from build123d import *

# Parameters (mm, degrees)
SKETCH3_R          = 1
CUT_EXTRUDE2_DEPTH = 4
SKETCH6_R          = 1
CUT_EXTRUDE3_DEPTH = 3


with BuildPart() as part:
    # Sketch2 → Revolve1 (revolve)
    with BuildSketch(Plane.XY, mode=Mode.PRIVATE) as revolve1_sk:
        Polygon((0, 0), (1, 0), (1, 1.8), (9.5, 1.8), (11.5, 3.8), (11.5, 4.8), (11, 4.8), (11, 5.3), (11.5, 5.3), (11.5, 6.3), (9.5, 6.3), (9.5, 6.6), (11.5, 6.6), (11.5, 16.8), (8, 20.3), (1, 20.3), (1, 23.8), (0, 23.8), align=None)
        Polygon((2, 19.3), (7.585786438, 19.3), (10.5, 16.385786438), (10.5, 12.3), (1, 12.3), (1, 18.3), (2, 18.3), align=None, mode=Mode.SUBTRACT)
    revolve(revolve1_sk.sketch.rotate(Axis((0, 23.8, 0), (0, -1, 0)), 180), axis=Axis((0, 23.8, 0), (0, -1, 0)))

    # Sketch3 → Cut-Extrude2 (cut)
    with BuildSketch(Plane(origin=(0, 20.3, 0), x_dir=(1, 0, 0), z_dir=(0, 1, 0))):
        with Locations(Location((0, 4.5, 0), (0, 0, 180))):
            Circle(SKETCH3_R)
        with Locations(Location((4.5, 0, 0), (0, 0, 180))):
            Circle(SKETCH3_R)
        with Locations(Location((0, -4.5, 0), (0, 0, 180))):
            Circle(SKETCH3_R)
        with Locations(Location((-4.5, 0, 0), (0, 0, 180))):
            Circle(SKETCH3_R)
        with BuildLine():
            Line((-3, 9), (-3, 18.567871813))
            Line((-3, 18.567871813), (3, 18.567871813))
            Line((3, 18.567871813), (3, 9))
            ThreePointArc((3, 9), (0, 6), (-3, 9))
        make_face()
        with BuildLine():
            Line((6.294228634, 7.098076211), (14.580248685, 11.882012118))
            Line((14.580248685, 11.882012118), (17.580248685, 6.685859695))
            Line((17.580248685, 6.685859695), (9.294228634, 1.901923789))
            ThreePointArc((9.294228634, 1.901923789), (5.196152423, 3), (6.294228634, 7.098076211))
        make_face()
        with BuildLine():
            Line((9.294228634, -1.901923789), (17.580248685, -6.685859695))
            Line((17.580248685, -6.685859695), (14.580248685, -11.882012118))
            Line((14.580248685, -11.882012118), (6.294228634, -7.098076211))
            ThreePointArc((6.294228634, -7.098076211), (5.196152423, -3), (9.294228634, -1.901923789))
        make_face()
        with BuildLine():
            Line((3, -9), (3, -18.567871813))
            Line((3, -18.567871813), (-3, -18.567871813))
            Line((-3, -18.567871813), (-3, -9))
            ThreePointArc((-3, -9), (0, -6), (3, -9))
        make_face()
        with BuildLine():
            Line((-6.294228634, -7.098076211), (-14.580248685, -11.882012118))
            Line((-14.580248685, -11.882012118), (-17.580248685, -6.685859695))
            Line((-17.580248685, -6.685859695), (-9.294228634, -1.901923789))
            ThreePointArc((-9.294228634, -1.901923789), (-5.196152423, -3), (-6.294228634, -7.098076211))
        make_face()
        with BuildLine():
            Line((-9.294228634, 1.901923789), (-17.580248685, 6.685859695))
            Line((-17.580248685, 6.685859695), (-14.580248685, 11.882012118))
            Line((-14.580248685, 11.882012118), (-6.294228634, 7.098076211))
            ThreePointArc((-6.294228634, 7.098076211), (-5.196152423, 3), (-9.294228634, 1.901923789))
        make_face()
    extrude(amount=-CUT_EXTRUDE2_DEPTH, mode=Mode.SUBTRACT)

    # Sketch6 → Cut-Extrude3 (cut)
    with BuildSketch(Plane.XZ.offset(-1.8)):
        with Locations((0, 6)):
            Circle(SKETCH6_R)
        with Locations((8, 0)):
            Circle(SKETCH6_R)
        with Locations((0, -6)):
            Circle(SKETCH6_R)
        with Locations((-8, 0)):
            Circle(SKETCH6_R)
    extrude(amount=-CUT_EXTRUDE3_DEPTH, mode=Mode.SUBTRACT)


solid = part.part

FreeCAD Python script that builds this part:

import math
import FreeCAD as App
import Part
import Sketcher
Q = App.Units.Quantity

doc = App.newDocument("Part")
body = doc.addObject("PartDesign::Body", "Body")

# Sketch on XY plane
sketch1 = body.newObject("Sketcher::SketchObject", "Sketch")
sketch1.AttachmentSupport = (doc.getObject("XY_Plane"), [""])
sketch1.MapMode = "FlatFace"
sketch1.addGeometry(Part.LineSegment(App.Vector(0, 0, 0), App.Vector(1, 0, 0)), False)
sketch1.addGeometry(Part.LineSegment(App.Vector(1, 0, 0), App.Vector(1, 1.8, 0)), False)
sketch1.addGeometry(Part.LineSegment(App.Vector(1, 1.8, 0), App.Vector(9.5, 1.8, 0)), False)
sketch1.addGeometry(Part.LineSegment(App.Vector(9.5, 1.8, 0), App.Vector(11.5, 3.8, 0)), False)
sketch1.addGeometry(Part.LineSegment(App.Vector(11.5, 3.8, 0), App.Vector(11.5, 4.8, 0)), False)
sketch1.addGeometry(Part.LineSegment(App.Vector(11.5, 4.8, 0), App.Vector(11, 4.8, 0)), False)
sketch1.addGeometry(Part.LineSegment(App.Vector(11, 4.8, 0), App.Vector(11, 5.3, 0)), False)
sketch1.addGeometry(Part.LineSegment(App.Vector(11, 5.3, 0), App.Vector(11.5, 5.3, 0)), False)
sketch1.addGeometry(Part.LineSegment(App.Vector(11.5, 5.3, 0), App.Vector(11.5, 6.3, 0)), False)
sketch1.addGeometry(Part.LineSegment(App.Vector(11.5, 6.3, 0), App.Vector(9.5, 6.3, 0)), False)
sketch1.addGeometry(Part.LineSegment(App.Vector(9.5, 6.3, 0), App.Vector(9.5, 6.6, 0)), False)
sketch1.addGeometry(Part.LineSegment(App.Vector(9.5, 6.6, 0), App.Vector(11.5, 6.6, 0)), False)
sketch1.addGeometry(Part.LineSegment(App.Vector(11.5, 6.6, 0), App.Vector(11.5, 16.8, 0)), False)
sketch1.addGeometry(Part.LineSegment(App.Vector(11.5, 16.8, 0), App.Vector(8, 20.3, 0)), False)
sketch1.addGeometry(Part.LineSegment(App.Vector(8, 20.3, 0), App.Vector(1, 20.3, 0)), False)
sketch1.addGeometry(Part.LineSegment(App.Vector(1, 20.3, 0), App.Vector(1, 23.8, 0)), False)
sketch1.addGeometry(Part.LineSegment(App.Vector(1, 23.8, 0), App.Vector(0, 23.8, 0)), False)
sketch1.addGeometry(Part.LineSegment(App.Vector(0, 23.8, 0), App.Vector(0, 0, 0)), False)
sketch1.addGeometry(Part.LineSegment(App.Vector(2, 18.3, 0), App.Vector(2, 19.3, 0)), False)
sketch1.addGeometry(Part.LineSegment(App.Vector(2, 19.3, 0), App.Vector(7.59, 19.3, 0)), False)
sketch1.addGeometry(Part.LineSegment(App.Vector(7.59, 19.3, 0), App.Vector(10.5, 16.39, 0)), False)
sketch1.addGeometry(Part.LineSegment(App.Vector(10.5, 16.39, 0), App.Vector(10.5, 12.3, 0)), False)
sketch1.addGeometry(Part.LineSegment(App.Vector(10.5, 12.3, 0), App.Vector(1, 12.3, 0)), False)
sketch1.addGeometry(Part.LineSegment(App.Vector(1, 12.3, 0), App.Vector(1, 18.3, 0)), False)
sketch1.addGeometry(Part.LineSegment(App.Vector(1, 18.3, 0), App.Vector(2, 18.3, 0)), False)
sketch1.addConstraint(Sketcher.Constraint("Coincident", 0, 2, 1, 1))
sketch1.addConstraint(Sketcher.Constraint("Coincident", 1, 2, 2, 1))
sketch1.addConstraint(Sketcher.Constraint("Coincident", 2, 2, 3, 1))
sketch1.addConstraint(Sketcher.Constraint("Coincident", 3, 2, 4, 1))
sketch1.addConstraint(Sketcher.Constraint("Coincident", 4, 2, 5, 1))
sketch1.addConstraint(Sketcher.Constraint("Coincident", 5, 2, 6, 1))
sketch1.addConstraint(Sketcher.Constraint("Coincident", 6, 2, 7, 1))
sketch1.addConstraint(Sketcher.Constraint("Coincident", 7, 2, 8, 1))
sketch1.addConstraint(Sketcher.Constraint("Coincident", 8, 2, 9, 1))
sketch1.addConstraint(Sketcher.Constraint("Coincident", 9, 2, 10, 1))
sketch1.addConstraint(Sketcher.Constraint("Coincident", 10, 2, 11, 1))
sketch1.addConstraint(Sketcher.Constraint("Coincident", 11, 2, 12, 1))
sketch1.addConstraint(Sketcher.Constraint("Coincident", 12, 2, 13, 1))
sketch1.addConstraint(Sketcher.Constraint("Coincident", 13, 2, 14, 1))
sketch1.addConstraint(Sketcher.Constraint("Coincident", 14, 2, 15, 1))
sketch1.addConstraint(Sketcher.Constraint("Coincident", 15, 2, 16, 1))
sketch1.addConstraint(Sketcher.Constraint("Coincident", 16, 2, 17, 1))
sketch1.addConstraint(Sketcher.Constraint("Coincident", 17, 2, 0, 1))
sketch1.addConstraint(Sketcher.Constraint("Coincident", 18, 2, 19, 1))
sketch1.addConstraint(Sketcher.Constraint("Coincident", 19, 2, 20, 1))
sketch1.addConstraint(Sketcher.Constraint("Coincident", 20, 2, 21, 1))
sketch1.addConstraint(Sketcher.Constraint("Coincident", 21, 2, 22, 1))
sketch1.addConstraint(Sketcher.Constraint("Coincident", 22, 2, 23, 1))
sketch1.addConstraint(Sketcher.Constraint("Coincident", 23, 2, 24, 1))
sketch1.addConstraint(Sketcher.Constraint("Coincident", 24, 2, 18, 1))
sketch1.addConstraint(Sketcher.Constraint("Horizontal", 0))
sketch1.addConstraint(Sketcher.Constraint("Vertical", 1))
sketch1.addConstraint(Sketcher.Constraint("Horizontal", 2))
sketch1.addConstraint(Sketcher.Constraint("Vertical", 4))
sketch1.addConstraint(Sketcher.Constraint("Horizontal", 5))
sketch1.addConstraint(Sketcher.Constraint("Vertical", 6))
sketch1.addConstraint(Sketcher.Constraint("Horizontal", 7))
sketch1.addConstraint(Sketcher.Constraint("Vertical", 8))
sketch1.addConstraint(Sketcher.Constraint("Horizontal", 9))
sketch1.addConstraint(Sketcher.Constraint("Vertical", 10))
sketch1.addConstraint(Sketcher.Constraint("Horizontal", 11))
sketch1.addConstraint(Sketcher.Constraint("Vertical", 12))
sketch1.addConstraint(Sketcher.Constraint("Horizontal", 14))
sketch1.addConstraint(Sketcher.Constraint("Vertical", 15))
sketch1.addConstraint(Sketcher.Constraint("Horizontal", 16))
sketch1.addConstraint(Sketcher.Constraint("Vertical", 17))
sketch1.addConstraint(Sketcher.Constraint("Vertical", 18))
sketch1.addConstraint(Sketcher.Constraint("Horizontal", 19))
sketch1.addConstraint(Sketcher.Constraint("Vertical", 21))
sketch1.addConstraint(Sketcher.Constraint("Horizontal", 22))
sketch1.addConstraint(Sketcher.Constraint("Vertical", 23))
sketch1.addConstraint(Sketcher.Constraint("Horizontal", 24))
sketch1.addConstraint(Sketcher.Constraint("Coincident", 17, 2, -1, 1))
sketch1.addConstraint(Sketcher.Constraint("Perpendicular", 3, 13))
sketch1.addConstraint(Sketcher.Constraint("Parallel", 13, 20))
sketch1.addConstraint(Sketcher.Constraint("Vertical", 4, 2, 7, 2))
sketch1.addConstraint(Sketcher.Constraint("Vertical", 2, 2, 9, 2))
sketch1.addConstraint(Sketcher.Constraint("Vertical", 8, 2, 11, 2))
sketch1.addConstraint(Sketcher.Constraint("Vertical", 1, 2, 14, 2))
sketch1.addConstraint(Sketcher.Constraint("Vertical", 15, 2, 22, 2))
sketch1.addConstraint(Sketcher.Constraint("Equal", 16, 24))
sketch1.addConstraint(Sketcher.Constraint("Equal", 24, 4))
sketch1.addConstraint(Sketcher.Constraint("Equal", 7, 6))
sketch1.addConstraint(Sketcher.Constraint("Equal", 4, 8))
sketch1.addConstraint(Sketcher.Constraint("Equal", 8, 18))
sketch1.addConstraint(Sketcher.Constraint("DistanceX", 0, 1, 0, 2, Q("1 mm")))
sketch1.addConstraint(Sketcher.Constraint("DistanceX", 9, 2, 9, 1, Q("2 mm")))
sketch1.addConstraint(Sketcher.Constraint("DistanceX", 14, 2, 14, 1, Q("7 mm")))
sketch1.addConstraint(Sketcher.Constraint("DistanceY", 23, 1, 23, 2, Q("6 mm")))
sketch1.addConstraint(Sketcher.Constraint("Angle", 3, Q("45 deg")))
sketch1.addConstraint(Sketcher.Constraint("DistanceX", 2, 1, 2, 2, Q("8.5 mm")))
sketch1.addConstraint(Sketcher.Constraint("DistanceX", 5, 2, 5, 1, Q("0.5 mm")))
sketch1.addConstraint(Sketcher.Constraint("DistanceX", 22, 2, 22, 1, Q("9.5 mm")))
sketch1.addConstraint(Sketcher.Constraint("DistanceY", 1, 1, 1, 2, Q("1.8 mm")))
sketch1.addConstraint(Sketcher.Constraint("DistanceY", 10, 1, 10, 2, Q("0.3 mm")))
sketch1.addConstraint(Sketcher.Constraint("DistanceY", 12, 1, 12, 2, Q("10.2 mm")))
sketch1.addConstraint(Sketcher.Constraint("DistanceY", 15, 1, 15, 2, Q("3.5 mm")))
sketch1.addConstraint(Sketcher.Constraint("DistanceY", 18, 2, 14, 2, Q("1 mm")))
sketch1.addConstraint(Sketcher.Constraint("Distance", 20, Q("4.12132 mm")))
revolution = body.newObject("PartDesign::Revolution", "Revolution")
revolution.Profile = sketch1
revolution.ReferenceAxis = (sketch1, ["V_Axis"])
revolution.Angle = 360

# Sketch on XZ plane
sketch2 = body.newObject("Sketcher::SketchObject", "Sketch001")
sketch2.AttachmentSupport = (doc.getObject("XZ_Plane"), [""])
sketch2.MapMode = "FlatFace"
sketch2.AttachmentOffset = App.Placement(App.Vector(0, 0, -20.3), App.Rotation())
sketch2.addGeometry(Part.Circle(App.Vector(0, -4.5, 0), App.Vector(0, 0, 1), 1), False)
sketch2.addGeometry(Part.Circle(App.Vector(4.5, 0, 0), App.Vector(0, 0, 1), 1), False)
sketch2.addGeometry(Part.Circle(App.Vector(0, 4.5, 0), App.Vector(0, 0, 1), 1), False)
sketch2.addGeometry(Part.Circle(App.Vector(-4.5, 0, 0), App.Vector(0, 0, 1), 1), False)
sketch2.addGeometry(Part.LineSegment(App.Vector(-3, -18.6, 0), App.Vector(-3, -9, 0)), False)
sketch2.addGeometry(Part.ArcOfCircle(Part.Circle(App.Vector(0, -9, 0), App.Vector(0, 0, 1), 3), math.radians(0), math.radians(180)), False)
sketch2.addGeometry(Part.LineSegment(App.Vector(3, -9, 0), App.Vector(3, -18.6, 0)), False)
sketch2.addGeometry(Part.LineSegment(App.Vector(3, -18.6, 0), App.Vector(-3, -18.6, 0)), False)
sketch2.addGeometry(Part.LineSegment(App.Vector(14.6, -11.9, 0), App.Vector(6.3, -7.1, 0)), False)
sketch2.addGeometry(Part.ArcOfCircle(Part.Circle(App.Vector(7.8, -4.5, 0), App.Vector(0, 0, 1), 3), math.radians(60), math.radians(240)), False)
sketch2.addGeometry(Part.LineSegment(App.Vector(9.3, -1.9, 0), App.Vector(17.6, -6.7, 0)), False)
sketch2.addGeometry(Part.LineSegment(App.Vector(17.6, -6.7, 0), App.Vector(14.6, -11.9, 0)), False)
sketch2.addGeometry(Part.LineSegment(App.Vector(17.6, 6.7, 0), App.Vector(9.3, 1.9, 0)), False)
sketch2.addGeometry(Part.ArcOfCircle(Part.Circle(App.Vector(7.8, 4.5, 0), App.Vector(0, 0, 1), 3), math.radians(120), math.radians(300)), False)
sketch2.addGeometry(Part.LineSegment(App.Vector(6.3, 7.1, 0), App.Vector(14.6, 11.9, 0)), False)
sketch2.addGeometry(Part.LineSegment(App.Vector(14.6, 11.9, 0), App.Vector(17.6, 6.7, 0)), False)
sketch2.addGeometry(Part.LineSegment(App.Vector(3, 18.6, 0), App.Vector(3, 9, 0)), False)
sketch2.addGeometry(Part.ArcOfCircle(Part.Circle(App.Vector(0, 9, 0), App.Vector(0, 0, 1), 3), math.radians(180), math.radians(360)), False)
sketch2.addGeometry(Part.LineSegment(App.Vector(-3, 9, 0), App.Vector(-3, 18.6, 0)), False)
sketch2.addGeometry(Part.LineSegment(App.Vector(-3, 18.6, 0), App.Vector(3, 18.6, 0)), False)
sketch2.addGeometry(Part.LineSegment(App.Vector(-14.6, 11.9, 0), App.Vector(-6.3, 7.1, 0)), False)
sketch2.addGeometry(Part.ArcOfCircle(Part.Circle(App.Vector(-7.8, 4.5, 0), App.Vector(0, 0, 1), 3), math.radians(-120), math.radians(60)), False)
sketch2.addGeometry(Part.LineSegment(App.Vector(-9.3, 1.9, 0), App.Vector(-17.6, 6.7, 0)), False)
sketch2.addGeometry(Part.LineSegment(App.Vector(-17.6, 6.7, 0), App.Vector(-14.6, 11.9, 0)), False)
sketch2.addGeometry(Part.LineSegment(App.Vector(-17.6, -6.7, 0), App.Vector(-9.3, -1.9, 0)), False)
sketch2.addGeometry(Part.ArcOfCircle(Part.Circle(App.Vector(-7.8, -4.5, 0), App.Vector(0, 0, 1), 3), math.radians(-60), math.radians(120)), False)
sketch2.addGeometry(Part.LineSegment(App.Vector(-6.3, -7.1, 0), App.Vector(-14.6, -11.9, 0)), False)
sketch2.addGeometry(Part.LineSegment(App.Vector(-14.6, -11.9, 0), App.Vector(-17.6, -6.7, 0)), False)
sketch2.addConstraint(Sketcher.Constraint("Tangent", 4, 2, 5, 2))
sketch2.addConstraint(Sketcher.Constraint("Tangent", 5, 1, 6, 1))
sketch2.addConstraint(Sketcher.Constraint("Coincident", 6, 2, 7, 1))
sketch2.addConstraint(Sketcher.Constraint("Coincident", 7, 2, 4, 1))
sketch2.addConstraint(Sketcher.Constraint("Tangent", 8, 2, 9, 2))
sketch2.addConstraint(Sketcher.Constraint("Tangent", 9, 1, 10, 1))
sketch2.addConstraint(Sketcher.Constraint("Coincident", 10, 2, 11, 1))
sketch2.addConstraint(Sketcher.Constraint("Coincident", 11, 2, 8, 1))
sketch2.addConstraint(Sketcher.Constraint("Tangent", 12, 2, 13, 2))
sketch2.addConstraint(Sketcher.Constraint("Tangent", 13, 1, 14, 1))
sketch2.addConstraint(Sketcher.Constraint("Coincident", 14, 2, 15, 1))
sketch2.addConstraint(Sketcher.Constraint("Coincident", 15, 2, 12, 1))
sketch2.addConstraint(Sketcher.Constraint("Tangent", 16, 2, 17, 2))
sketch2.addConstraint(Sketcher.Constraint("Tangent", 17, 1, 18, 1))
sketch2.addConstraint(Sketcher.Constraint("Coincident", 18, 2, 19, 1))
sketch2.addConstraint(Sketcher.Constraint("Coincident", 19, 2, 16, 1))
sketch2.addConstraint(Sketcher.Constraint("Tangent", 20, 2, 21, 2))
sketch2.addConstraint(Sketcher.Constraint("Tangent", 21, 1, 22, 1))
sketch2.addConstraint(Sketcher.Constraint("Coincident", 22, 2, 23, 1))
sketch2.addConstraint(Sketcher.Constraint("Coincident", 23, 2, 20, 1))
sketch2.addConstraint(Sketcher.Constraint("Tangent", 24, 2, 25, 2))
sketch2.addConstraint(Sketcher.Constraint("Tangent", 25, 1, 26, 1))
sketch2.addConstraint(Sketcher.Constraint("Coincident", 26, 2, 27, 1))
sketch2.addConstraint(Sketcher.Constraint("Coincident", 27, 2, 24, 1))
sketch2.addConstraint(Sketcher.Constraint("Vertical", 4))
sketch2.addConstraint(Sketcher.Constraint("Vertical", 6))
sketch2.addConstraint(Sketcher.Constraint("Horizontal", 7))
sketch2.addConstraint(Sketcher.Constraint("Vertical", 16))
sketch2.addConstraint(Sketcher.Constraint("Vertical", 18))
sketch2.addConstraint(Sketcher.Constraint("Horizontal", 19))
sketch2.addConstraint(Sketcher.Constraint("Equal", 0, 1))
sketch2.addConstraint(Sketcher.Constraint("Equal", 1, 2))
sketch2.addConstraint(Sketcher.Constraint("Equal", 2, 3))
sketch2.addConstraint(Sketcher.Constraint("Equal", 5, 9))
sketch2.addConstraint(Sketcher.Constraint("Equal", 9, 13))
sketch2.addConstraint(Sketcher.Constraint("Equal", 13, 17))
sketch2.addConstraint(Sketcher.Constraint("Equal", 17, 21))
sketch2.addConstraint(Sketcher.Constraint("Equal", 21, 25))
sketch2.addConstraint(Sketcher.Constraint("Symmetric", 0, 3, 2, 3, -1, 1))
sketch2.addConstraint(Sketcher.Constraint("Symmetric", 1, 3, 3, 3, -1, 1))
sketch2.addConstraint(Sketcher.Constraint("Symmetric", 5, 3, 17, 3, -1, 1))
sketch2.addConstraint(Sketcher.Constraint("Symmetric", 9, 3, 21, 3, -1, 1))
sketch2.addConstraint(Sketcher.Constraint("Symmetric", 13, 3, 25, 3, -1, 1))
sketch2.addConstraint(Sketcher.Constraint("Symmetric", 10, 2, 22, 2, -1, 1))
sketch2.addConstraint(Sketcher.Constraint("Symmetric", 11, 2, 23, 2, -1, 1))
sketch2.addConstraint(Sketcher.Constraint("Symmetric", 14, 2, 26, 2, -1, 1))
sketch2.addConstraint(Sketcher.Constraint("Symmetric", 15, 2, 27, 2, -1, 1))
sketch2.addConstraint(Sketcher.Constraint("Symmetric", 13, 3, 21, 3, -2))
sketch2.addConstraint(Sketcher.Constraint("Symmetric", 15, 2, 22, 2, -2))
sketch2.addConstraint(Sketcher.Constraint("Symmetric", 14, 2, 23, 2, -2))
sketch2.addConstraint(Sketcher.Constraint("Symmetric", 7, 2, 18, 2, -1))
sketch2.addConstraint(Sketcher.Constraint("PointOnObject", 0, 3, -2))
sketch2.addConstraint(Sketcher.Constraint("PointOnObject", 1, 3, -1))
sketch2.addConstraint(Sketcher.Constraint("Parallel", 8, 10))
sketch2.addConstraint(Sketcher.Constraint("Perpendicular", 10, 11))
sketch2.addConstraint(Sketcher.Constraint("Horizontal", 0, 3, 9, 3))
sketch2.addConstraint(Sketcher.Constraint("Diameter", 0, Q("2 mm")))
sketch2.addConstraint(Sketcher.Constraint("Radius", 5, Q("3 mm")))
sketch2.addConstraint(Sketcher.Constraint("Angle", 8, Q("150 deg")))
sketch2.addConstraint(Sketcher.Constraint("DistanceY", 5, 3, -1, 1, Q("9 mm")))
sketch2.addConstraint(Sketcher.Constraint("DistanceY", 0, 3, 2, 3, Q("9 mm")))
sketch2.addConstraint(Sketcher.Constraint("DistanceX", 3, 3, 1, 3, Q("9 mm")))
sketch2.addConstraint(Sketcher.Constraint("DistanceY", 4, 1, 4, 2, Q("9.567872 mm")))
sketch2.addConstraint(Sketcher.Constraint("Distance", 8, Q("9.567872 mm")))
sketch2.addConstraint(Sketcher.Constraint("DistanceX", -1, 1, 9, 3, Q("7.794229 mm")))
pocket1 = body.newObject("PartDesign::Pocket", "Pocket")
pocket1.Profile = sketch2
pocket1.Length = 4
pocket1.Reversed = True

# Sketch on XZ plane
sketch3 = body.newObject("Sketcher::SketchObject", "Sketch002")
sketch3.AttachmentSupport = (doc.getObject("XZ_Plane"), [""])
sketch3.MapMode = "FlatFace"
sketch3.AttachmentOffset = App.Placement(App.Vector(0, 0, -1.8), App.Rotation())
sketch3.addGeometry(Part.Circle(App.Vector(0, 6, 0), App.Vector(0, 0, 1), 1), False)
sketch3.addGeometry(Part.Circle(App.Vector(8, 0, 0), App.Vector(0, 0, 1), 1), False)
sketch3.addGeometry(Part.Circle(App.Vector(0, -6, 0), App.Vector(0, 0, 1), 1), False)
sketch3.addGeometry(Part.Circle(App.Vector(-8, 0, 0), App.Vector(0, 0, 1), 1), False)
sketch3.addConstraint(Sketcher.Constraint("Equal", 0, 1))
sketch3.addConstraint(Sketcher.Constraint("Equal", 1, 2))
sketch3.addConstraint(Sketcher.Constraint("Equal", 2, 3))
sketch3.addConstraint(Sketcher.Constraint("Symmetric", 0, 3, 2, 3, -1, 1))
sketch3.addConstraint(Sketcher.Constraint("Symmetric", 1, 3, 3, 3, -1, 1))
sketch3.addConstraint(Sketcher.Constraint("PointOnObject", 0, 3, -2))
sketch3.addConstraint(Sketcher.Constraint("PointOnObject", 1, 3, -1))
sketch3.addConstraint(Sketcher.Constraint("Diameter", 0, Q("2 mm")))
sketch3.addConstraint(Sketcher.Constraint("DistanceY", -1, 1, 0, 3, Q("6 mm")))
sketch3.addConstraint(Sketcher.Constraint("DistanceX", -1, 1, 1, 3, Q("8 mm")))
pocket2 = body.newObject("PartDesign::Pocket", "Pocket001")
pocket2.Profile = sketch3
pocket2.Length = 3

doc.recompute()
